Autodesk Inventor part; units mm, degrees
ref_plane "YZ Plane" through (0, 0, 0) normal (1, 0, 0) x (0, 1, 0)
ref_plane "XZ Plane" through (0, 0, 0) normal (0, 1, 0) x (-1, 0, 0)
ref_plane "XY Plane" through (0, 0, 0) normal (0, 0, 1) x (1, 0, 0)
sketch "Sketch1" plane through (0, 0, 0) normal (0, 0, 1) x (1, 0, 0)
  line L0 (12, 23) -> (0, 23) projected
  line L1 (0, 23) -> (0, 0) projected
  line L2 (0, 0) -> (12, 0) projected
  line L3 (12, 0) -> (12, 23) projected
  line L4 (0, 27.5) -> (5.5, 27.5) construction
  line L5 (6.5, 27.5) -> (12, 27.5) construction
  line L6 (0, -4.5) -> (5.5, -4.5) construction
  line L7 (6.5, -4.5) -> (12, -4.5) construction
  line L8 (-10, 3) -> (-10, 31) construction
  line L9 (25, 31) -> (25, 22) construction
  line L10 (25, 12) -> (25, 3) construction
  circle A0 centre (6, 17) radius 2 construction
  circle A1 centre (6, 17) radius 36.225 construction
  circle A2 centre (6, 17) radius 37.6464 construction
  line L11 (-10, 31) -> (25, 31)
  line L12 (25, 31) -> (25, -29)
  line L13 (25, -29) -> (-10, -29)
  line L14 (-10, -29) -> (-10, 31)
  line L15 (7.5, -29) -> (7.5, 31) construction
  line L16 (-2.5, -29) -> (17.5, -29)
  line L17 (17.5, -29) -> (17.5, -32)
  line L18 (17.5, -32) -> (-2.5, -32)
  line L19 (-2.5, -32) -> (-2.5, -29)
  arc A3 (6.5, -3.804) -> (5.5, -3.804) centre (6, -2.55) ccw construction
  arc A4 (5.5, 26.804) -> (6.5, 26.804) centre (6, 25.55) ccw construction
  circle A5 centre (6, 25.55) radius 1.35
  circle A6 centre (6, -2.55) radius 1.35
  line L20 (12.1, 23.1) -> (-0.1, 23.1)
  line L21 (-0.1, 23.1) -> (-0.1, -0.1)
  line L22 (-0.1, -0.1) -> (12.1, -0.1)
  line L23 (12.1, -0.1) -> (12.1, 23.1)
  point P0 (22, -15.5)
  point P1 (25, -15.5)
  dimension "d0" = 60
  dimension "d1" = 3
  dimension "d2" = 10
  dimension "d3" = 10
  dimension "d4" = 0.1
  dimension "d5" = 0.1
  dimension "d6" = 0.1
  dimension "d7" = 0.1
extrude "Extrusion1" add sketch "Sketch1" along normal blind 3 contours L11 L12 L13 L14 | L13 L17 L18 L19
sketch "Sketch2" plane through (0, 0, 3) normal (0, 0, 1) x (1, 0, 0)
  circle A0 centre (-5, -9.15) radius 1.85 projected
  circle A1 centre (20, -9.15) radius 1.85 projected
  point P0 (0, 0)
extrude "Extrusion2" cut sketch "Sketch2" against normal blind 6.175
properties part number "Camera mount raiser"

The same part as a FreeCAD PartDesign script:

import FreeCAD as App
import Part
import Sketcher

V = App.Vector
Q = App.Units.Quantity

doc = App.newDocument("Part")
body = doc.addObject("PartDesign::Body", "Body")

sketch1 = body.newObject("Sketcher::SketchObject", "Sketch")
sketch1.AttachmentSupport = (doc.getObject("XY_Plane"), [""])
sketch1.MapMode = "FlatFace"
sketch1.addGeometry([
    Part.LineSegment(V(25, 31, 0), V(-10, 31, 0)),
    Part.LineSegment(V(-10, 31, 0), V(-10, -29, 0)),
    Part.LineSegment(V(-10, -29, 0), V(-2.5, -29, 0)),
    Part.LineSegment(V(-2.5, -29, 0), V(-2.5, -32, 0)),
    Part.LineSegment(V(-2.5, -32, 0), V(17.5, -32, 0)),
    Part.LineSegment(V(17.5, -32, 0), V(17.5, -29, 0)),
    Part.LineSegment(V(17.5, -29, 0), V(25, -29, 0)),
    Part.LineSegment(V(25, -29, 0), V(25, 31, 0)),
    Part.Circle(V(6, -2.55, 0), V(0, 0, 1), 1.35),
    Part.LineSegment(V(-0.1, 23.1, 0), V(12.1, 23.1, 0)),
    Part.LineSegment(V(12.1, 23.1, 0), V(12.1, -0.1, 0)),
    Part.LineSegment(V(12.1, -0.1, 0), V(-0.1, -0.1, 0)),
    Part.LineSegment(V(-0.1, -0.1, 0), V(-0.1, 23.1, 0)),
    Part.Circle(V(6, 25.55, 0), V(0, 0, 1), 1.35),
], False)
sketch1.addConstraint([
    Sketcher.Constraint("Coincident", 0, 2, 1, 1),
    Sketcher.Constraint("Coincident", 1, 2, 2, 1),
    Sketcher.Constraint("Coincident", 2, 2, 3, 1),
    Sketcher.Constraint("Coincident", 3, 2, 4, 1),
    Sketcher.Constraint("Coincident", 4, 2, 5, 1),
    Sketcher.Constraint("Coincident", 5, 2, 6, 1),
    Sketcher.Constraint("Coincident", 6, 2, 7, 1),
    Sketcher.Constraint("Coincident", 7, 2, 0, 1),
    Sketcher.Constraint("Coincident", 9, 2, 10, 1),
    Sketcher.Constraint("Coincident", 10, 2, 11, 1),
    Sketcher.Constraint("Coincident", 11, 2, 12, 1),
    Sketcher.Constraint("Coincident", 12, 2, 9, 1),
    Sketcher.Constraint("Horizontal", 0),
    Sketcher.Constraint("Vertical", 1),
    Sketcher.Constraint("Horizontal", 2),
    Sketcher.Constraint("Vertical", 3),
    Sketcher.Constraint("Horizontal", 4),
    Sketcher.Constraint("Vertical", 5),
    Sketcher.Constraint("Horizontal", 6),
    Sketcher.Constraint("Vertical", 7),
    Sketcher.Constraint("Horizontal", 9),
    Sketcher.Constraint("Vertical", 10),
    Sketcher.Constraint("Horizontal", 11),
    Sketcher.Constraint("Vertical", 12),
    Sketcher.Constraint("Equal", 8, 13),
    Sketcher.Constraint("Horizontal", 2, 2, 5, 2),
    Sketcher.Constraint("Vertical", 8, 3, 13, 3),
    Sketcher.Constraint("Equal", 2, 6),
    Sketcher.Constraint("DistanceY", 1, 2, 1, 1, Q("60 mm")),
    Sketcher.Constraint("DistanceY", 3, 2, 3, 1, Q("3 mm")),
    Sketcher.Constraint("DistanceX", 0, 2, -1, 1, Q("10 mm")),
    Sketcher.Constraint("Diameter", 8, Q("2.7 mm")),
    Sketcher.Constraint("DistanceY", 10, 2, -1, 1, Q("0.1 mm")),
    Sketcher.Constraint("DistanceX", 11, 2, -1, 1, Q("0.1 mm")),
    Sketcher.Constraint("DistanceX", 0, 2, 0, 1, Q("35 mm")),
    Sketcher.Constraint("DistanceX", 4, 1, 4, 2, Q("20 mm")),
    Sketcher.Constraint("DistanceX", 9, 1, 9, 2, Q("12.2 mm")),
    Sketcher.Constraint("DistanceY", 10, 2, 10, 1, Q("23.2 mm")),
    Sketcher.Constraint("DistanceX", -1, 1, 8, 3, Q("6 mm")),
    Sketcher.Constraint("DistanceY", -1, 1, 0, 2, Q("31 mm")),
    Sketcher.Constraint("DistanceY", 8, 3, 13, 3, Q("28.1 mm")),
    Sketcher.Constraint("DistanceY", 8, 3, -1, 1, Q("2.55 mm")),
])
pad1 = body.newObject("PartDesign::Pad", "Pad")
pad1.Profile = sketch1
pad1.Length = 3

sketch2 = body.newObject("Sketcher::SketchObject", "Sketch001")
sketch2.AttachmentSupport = (doc.getObject("XY_Plane"), [""])
sketch2.MapMode = "FlatFace"
sketch2.AttachmentOffset = App.Placement(V(0, 0, 3), App.Rotation())
sketch2.addGeometry([
    Part.Circle(V(-5, -9.15, 0), V(0, 0, 1), 1.85),
    Part.Circle(V(20, -9.15, 0), V(0, 0, 1), 1.85),
], False)
sketch2.addConstraint([
    Sketcher.Constraint("Equal", 0, 1),
    Sketcher.Constraint("Horizontal", 0, 3, 1, 3),
    Sketcher.Constraint("Diameter", 0, Q("3.7 mm")),
    Sketcher.Constraint("DistanceX", 0, 3, -1, 1, Q("5 mm")),
    Sketcher.Constraint("DistanceX", -1, 1, 1, 3, Q("20 mm")),
    Sketcher.Constraint("DistanceY", 0, 3, -1, 1, Q("9.15 mm")),
])
pocket1 = body.newObject("PartDesign::Pocket", "Pocket")
pocket1.Profile = sketch2
pocket1.Length = 6.175

doc.recompute()
